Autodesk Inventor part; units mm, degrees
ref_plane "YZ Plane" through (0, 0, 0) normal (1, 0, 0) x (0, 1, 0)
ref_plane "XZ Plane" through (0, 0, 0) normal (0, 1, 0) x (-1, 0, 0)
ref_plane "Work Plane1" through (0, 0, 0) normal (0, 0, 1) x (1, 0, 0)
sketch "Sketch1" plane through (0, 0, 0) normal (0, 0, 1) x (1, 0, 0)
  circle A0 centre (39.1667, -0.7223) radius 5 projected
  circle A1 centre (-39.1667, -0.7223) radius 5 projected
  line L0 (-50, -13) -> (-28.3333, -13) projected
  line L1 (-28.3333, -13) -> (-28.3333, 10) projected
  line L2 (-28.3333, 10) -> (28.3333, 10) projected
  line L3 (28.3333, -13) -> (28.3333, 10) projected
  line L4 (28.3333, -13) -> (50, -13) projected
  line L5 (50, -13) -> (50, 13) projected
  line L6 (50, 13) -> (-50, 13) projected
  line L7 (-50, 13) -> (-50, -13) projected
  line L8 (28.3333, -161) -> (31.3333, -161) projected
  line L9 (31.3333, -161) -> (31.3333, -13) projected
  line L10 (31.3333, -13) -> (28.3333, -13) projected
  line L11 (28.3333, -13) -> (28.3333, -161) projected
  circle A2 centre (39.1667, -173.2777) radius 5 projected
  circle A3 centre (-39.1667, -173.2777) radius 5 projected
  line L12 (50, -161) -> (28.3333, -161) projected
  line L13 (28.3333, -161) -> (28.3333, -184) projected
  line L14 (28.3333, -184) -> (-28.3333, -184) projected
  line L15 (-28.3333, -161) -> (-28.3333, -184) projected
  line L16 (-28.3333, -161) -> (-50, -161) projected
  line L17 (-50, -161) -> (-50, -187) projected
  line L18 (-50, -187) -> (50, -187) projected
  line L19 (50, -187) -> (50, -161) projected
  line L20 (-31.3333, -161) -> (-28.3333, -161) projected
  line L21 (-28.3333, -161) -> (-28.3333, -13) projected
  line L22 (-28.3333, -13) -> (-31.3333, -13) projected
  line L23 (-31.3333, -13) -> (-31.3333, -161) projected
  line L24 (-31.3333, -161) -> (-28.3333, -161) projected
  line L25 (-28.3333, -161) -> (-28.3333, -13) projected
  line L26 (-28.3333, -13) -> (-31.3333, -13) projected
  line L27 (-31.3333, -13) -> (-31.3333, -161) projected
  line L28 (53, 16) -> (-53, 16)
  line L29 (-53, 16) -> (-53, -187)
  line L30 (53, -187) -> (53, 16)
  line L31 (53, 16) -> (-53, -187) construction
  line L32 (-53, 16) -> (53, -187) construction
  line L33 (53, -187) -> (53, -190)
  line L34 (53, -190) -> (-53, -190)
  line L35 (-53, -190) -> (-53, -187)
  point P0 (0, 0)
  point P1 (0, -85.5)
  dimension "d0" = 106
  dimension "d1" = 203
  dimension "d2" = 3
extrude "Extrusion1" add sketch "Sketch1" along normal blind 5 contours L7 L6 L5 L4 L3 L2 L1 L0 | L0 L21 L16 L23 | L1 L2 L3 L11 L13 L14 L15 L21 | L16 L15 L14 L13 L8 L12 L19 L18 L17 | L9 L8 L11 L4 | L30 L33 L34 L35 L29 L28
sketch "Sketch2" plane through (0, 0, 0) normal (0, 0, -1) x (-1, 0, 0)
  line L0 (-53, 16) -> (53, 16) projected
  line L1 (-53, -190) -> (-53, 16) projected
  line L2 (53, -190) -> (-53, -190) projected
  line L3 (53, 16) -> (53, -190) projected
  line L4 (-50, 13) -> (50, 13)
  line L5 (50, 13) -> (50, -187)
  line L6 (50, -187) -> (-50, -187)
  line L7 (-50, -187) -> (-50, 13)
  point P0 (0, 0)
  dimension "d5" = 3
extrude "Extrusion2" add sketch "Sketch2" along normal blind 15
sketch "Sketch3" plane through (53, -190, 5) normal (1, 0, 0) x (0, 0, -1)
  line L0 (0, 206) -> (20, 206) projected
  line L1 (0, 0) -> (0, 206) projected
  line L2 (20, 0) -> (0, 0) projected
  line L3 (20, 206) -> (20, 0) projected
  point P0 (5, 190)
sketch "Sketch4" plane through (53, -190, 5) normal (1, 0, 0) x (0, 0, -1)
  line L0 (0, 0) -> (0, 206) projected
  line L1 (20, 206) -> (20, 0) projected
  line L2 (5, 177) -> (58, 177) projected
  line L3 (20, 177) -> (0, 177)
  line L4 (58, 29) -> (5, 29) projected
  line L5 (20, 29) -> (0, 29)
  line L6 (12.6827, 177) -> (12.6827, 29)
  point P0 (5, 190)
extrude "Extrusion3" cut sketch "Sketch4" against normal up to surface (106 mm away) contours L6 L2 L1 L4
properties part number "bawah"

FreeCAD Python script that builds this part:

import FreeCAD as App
import Part
import Sketcher

V = App.Vector


def add_polygon(sketch, points):
    """Adds a closed chain of lines whose ends are joined by coincident constraints."""
    first, n = sketch.GeometryCount, len(points)
    for a, b in zip(points, points[1:] + points[:1]):
        sketch.addGeometry(Part.LineSegment(App.Vector(*a, 0), App.Vector(*b, 0)), False)
    for i in range(n):
        sketch.addConstraint(Sketcher.Constraint("Coincident", first + i, 2, first + (i + 1) % n, 1))

doc = App.newDocument("Part")
params = doc.addObject("Spreadsheet::Sheet", "Params")
for row, (alias, value) in enumerate([
    ("sketch1_width", "106 mm"),
    ("sketch1_diameter", "10 mm"),
    ("sketch1_height", "206 mm"),
    ("pad1_length", "5 mm"),
    ("sketch2_width", "106 mm"),
    ("sketch2_height", "206 mm"),
    ("pad2_length", "15 mm"),
    ("sketch3_width", "148 mm"),
    ("pocket1_length", "106 mm"),
], start=1):
    params.set(f"A{row}", alias)
    params.set(f"B{row}", "=" + value)
    params.setAlias(f"B{row}", alias)

body = doc.addObject("PartDesign::Body", "Body")

sketch1 = body.newObject("Sketcher::SketchObject", "Sketch")
sketch1.AttachmentSupport = (doc.getObject("XY_Plane"), [""])
sketch1.MapMode = "FlatFace"
add_polygon(sketch1, [(53, 16), (-53, 16), (-53, -190), (53, -190)])
sketch1.addGeometry(Part.Circle(V(-39.1667, -0.7223, 0), V(0, 0, 1), 5), False)
sketch1.addGeometry(Part.Circle(V(39.1667, -0.7223, 0), V(0, 0, 1), 5), False)
sketch1.addGeometry(Part.Circle(V(39.1667, -173.2777, 0), V(0, 0, 1), 5), False)
sketch1.addGeometry(Part.Circle(V(-39.1667, -173.2777, 0), V(0, 0, 1), 5), False)
sketch1.addConstraint(Sketcher.Constraint("Horizontal", 0))
sketch1.addConstraint(Sketcher.Constraint("Vertical", 1))
sketch1.addConstraint(Sketcher.Constraint("Horizontal", 2))
sketch1.addConstraint(Sketcher.Constraint("Vertical", 3))
sketch1.addConstraint(Sketcher.Constraint("Equal", 4, 5))
sketch1.addConstraint(Sketcher.Constraint("Equal", 5, 6))
sketch1.addConstraint(Sketcher.Constraint("Equal", 6, 7))
sketch1.addConstraint(Sketcher.Constraint("Symmetric", 4, 3, 5, 3, -2))
sketch1.addConstraint(Sketcher.Constraint("Symmetric", 6, 3, 7, 3, -2))
sketch1.addConstraint(Sketcher.Constraint("Vertical", 5, 3, 6, 3))
sketch1.addConstraint(Sketcher.Constraint("DistanceX", 0, 2, 0, 1, 106.0))
sketch1.addConstraint(Sketcher.Constraint("Diameter", 4, 10.0))
sketch1.addConstraint(Sketcher.Constraint("DistanceY", 1, 2, 1, 1, 206.0))
sketch1.addConstraint(Sketcher.Constraint("DistanceX", 0, 2, -1, 1, 53.0))
sketch1.addConstraint(Sketcher.Constraint("DistanceY", -1, 1, 0, 2, 16.0))
sketch1.addConstraint(Sketcher.Constraint("DistanceX", 4, 3, -1, 1, 39.1667))
sketch1.addConstraint(Sketcher.Constraint("DistanceY", 4, 3, -1, 1, 0.7223))
sketch1.addConstraint(Sketcher.Constraint("DistanceY", 6, 3, -1, 1, 173.2777))
sketch1.setExpression("Constraints[14]", "Params.sketch1_width")
sketch1.setExpression("Constraints[15]", "Params.sketch1_diameter")
sketch1.setExpression("Constraints[16]", "Params.sketch1_height")
pad1 = body.newObject("PartDesign::Pad", "Pad")
pad1.Profile = sketch1
pad1.setExpression("Length", "Params.pad1_length")

sketch2 = body.newObject("Sketcher::SketchObject", "Sketch001")
sketch2.AttachmentSupport = (doc.getObject("XY_Plane"), [""])
sketch2.MapMode = "FlatFace"
add_polygon(sketch2, [(-53, 16), (53, 16), (53, -190), (-53, -190)])
add_polygon(sketch2, [(50, -187), (50, 13), (-50, 13), (-50, -187)])
sketch2.addConstraint(Sketcher.Constraint("Horizontal", 0))
sketch2.addConstraint(Sketcher.Constraint("Vertical", 1))
sketch2.addConstraint(Sketcher.Constraint("Horizontal", 2))
sketch2.addConstraint(Sketcher.Constraint("Vertical", 3))
sketch2.addConstraint(Sketcher.Constraint("Vertical", 4))
sketch2.addConstraint(Sketcher.Constraint("Horizontal", 5))
sketch2.addConstraint(Sketcher.Constraint("Vertical", 6))
sketch2.addConstraint(Sketcher.Constraint("Horizontal", 7))
sketch2.addConstraint(Sketcher.Constraint("DistanceX", 4, 2, 0, 2, 3.0))
sketch2.addConstraint(Sketcher.Constraint("DistanceY", 4, 2, 0, 2, 3.0))
sketch2.addConstraint(Sketcher.Constraint("DistanceX", 3, 2, 5, 2, 3.0))
sketch2.addConstraint(Sketcher.Constraint("DistanceY", 2, 2, 6, 2, 3.0))
sketch2.addConstraint(Sketcher.Constraint("DistanceX", 0, 1, 0, 2, 106.0))
sketch2.addConstraint(Sketcher.Constraint("DistanceY", 1, 2, 1, 1, 206.0))
sketch2.addConstraint(Sketcher.Constraint("DistanceX", -1, 1, 0, 2, 53.0))
sketch2.addConstraint(Sketcher.Constraint("DistanceY", -1, 1, 0, 2, 16.0))
sketch2.setExpression("Constraints[20]", "Params.sketch2_width")
sketch2.setExpression("Constraints[21]", "Params.sketch2_height")
pad2 = body.newObject("PartDesign::Pad", "Pad001")
pad2.Profile = sketch2
pad2.setExpression("Length", "Params.pad2_length")
pad2.Reversed = True

sketch3 = body.newObject("Sketcher::SketchObject", "Sketch002")
sketch3.AttachmentSupport = (doc.getObject("YZ_Plane"), [""])
sketch3.MapMode = "FlatFace"
sketch3.AttachmentOffset = App.Placement(V(0, 0, 53), App.Rotation())
add_polygon(sketch3, [(-13, -7.6827), (-161, -7.6827), (-161, -15), (-13, -15)])
sketch3.addConstraint(Sketcher.Constraint("Horizontal", 0))
sketch3.addConstraint(Sketcher.Constraint("Vertical", 1))
sketch3.addConstraint(Sketcher.Constraint("Horizontal", 2))
sketch3.addConstraint(Sketcher.Constraint("Vertical", 3))
sketch3.addConstraint(Sketcher.Constraint("DistanceX", 0, 2, 0, 1, 148.0))
sketch3.addConstraint(Sketcher.Constraint("DistanceX", 0, 2, -1, 1, 161.0))
sketch3.addConstraint(Sketcher.Constraint("DistanceY", 1, 2, -1, 1, 15.0))
sketch3.addConstraint(Sketcher.Constraint("DistanceY", 1, 2, 1, 1, 7.3173))
sketch3.setExpression("Constraints[8]", "Params.sketch3_width")
pocket1 = body.newObject("PartDesign::Pocket", "Pocket")
pocket1.Profile = sketch3
pocket1.setExpression("Length", "Params.pocket1_length")

doc.recompute()
